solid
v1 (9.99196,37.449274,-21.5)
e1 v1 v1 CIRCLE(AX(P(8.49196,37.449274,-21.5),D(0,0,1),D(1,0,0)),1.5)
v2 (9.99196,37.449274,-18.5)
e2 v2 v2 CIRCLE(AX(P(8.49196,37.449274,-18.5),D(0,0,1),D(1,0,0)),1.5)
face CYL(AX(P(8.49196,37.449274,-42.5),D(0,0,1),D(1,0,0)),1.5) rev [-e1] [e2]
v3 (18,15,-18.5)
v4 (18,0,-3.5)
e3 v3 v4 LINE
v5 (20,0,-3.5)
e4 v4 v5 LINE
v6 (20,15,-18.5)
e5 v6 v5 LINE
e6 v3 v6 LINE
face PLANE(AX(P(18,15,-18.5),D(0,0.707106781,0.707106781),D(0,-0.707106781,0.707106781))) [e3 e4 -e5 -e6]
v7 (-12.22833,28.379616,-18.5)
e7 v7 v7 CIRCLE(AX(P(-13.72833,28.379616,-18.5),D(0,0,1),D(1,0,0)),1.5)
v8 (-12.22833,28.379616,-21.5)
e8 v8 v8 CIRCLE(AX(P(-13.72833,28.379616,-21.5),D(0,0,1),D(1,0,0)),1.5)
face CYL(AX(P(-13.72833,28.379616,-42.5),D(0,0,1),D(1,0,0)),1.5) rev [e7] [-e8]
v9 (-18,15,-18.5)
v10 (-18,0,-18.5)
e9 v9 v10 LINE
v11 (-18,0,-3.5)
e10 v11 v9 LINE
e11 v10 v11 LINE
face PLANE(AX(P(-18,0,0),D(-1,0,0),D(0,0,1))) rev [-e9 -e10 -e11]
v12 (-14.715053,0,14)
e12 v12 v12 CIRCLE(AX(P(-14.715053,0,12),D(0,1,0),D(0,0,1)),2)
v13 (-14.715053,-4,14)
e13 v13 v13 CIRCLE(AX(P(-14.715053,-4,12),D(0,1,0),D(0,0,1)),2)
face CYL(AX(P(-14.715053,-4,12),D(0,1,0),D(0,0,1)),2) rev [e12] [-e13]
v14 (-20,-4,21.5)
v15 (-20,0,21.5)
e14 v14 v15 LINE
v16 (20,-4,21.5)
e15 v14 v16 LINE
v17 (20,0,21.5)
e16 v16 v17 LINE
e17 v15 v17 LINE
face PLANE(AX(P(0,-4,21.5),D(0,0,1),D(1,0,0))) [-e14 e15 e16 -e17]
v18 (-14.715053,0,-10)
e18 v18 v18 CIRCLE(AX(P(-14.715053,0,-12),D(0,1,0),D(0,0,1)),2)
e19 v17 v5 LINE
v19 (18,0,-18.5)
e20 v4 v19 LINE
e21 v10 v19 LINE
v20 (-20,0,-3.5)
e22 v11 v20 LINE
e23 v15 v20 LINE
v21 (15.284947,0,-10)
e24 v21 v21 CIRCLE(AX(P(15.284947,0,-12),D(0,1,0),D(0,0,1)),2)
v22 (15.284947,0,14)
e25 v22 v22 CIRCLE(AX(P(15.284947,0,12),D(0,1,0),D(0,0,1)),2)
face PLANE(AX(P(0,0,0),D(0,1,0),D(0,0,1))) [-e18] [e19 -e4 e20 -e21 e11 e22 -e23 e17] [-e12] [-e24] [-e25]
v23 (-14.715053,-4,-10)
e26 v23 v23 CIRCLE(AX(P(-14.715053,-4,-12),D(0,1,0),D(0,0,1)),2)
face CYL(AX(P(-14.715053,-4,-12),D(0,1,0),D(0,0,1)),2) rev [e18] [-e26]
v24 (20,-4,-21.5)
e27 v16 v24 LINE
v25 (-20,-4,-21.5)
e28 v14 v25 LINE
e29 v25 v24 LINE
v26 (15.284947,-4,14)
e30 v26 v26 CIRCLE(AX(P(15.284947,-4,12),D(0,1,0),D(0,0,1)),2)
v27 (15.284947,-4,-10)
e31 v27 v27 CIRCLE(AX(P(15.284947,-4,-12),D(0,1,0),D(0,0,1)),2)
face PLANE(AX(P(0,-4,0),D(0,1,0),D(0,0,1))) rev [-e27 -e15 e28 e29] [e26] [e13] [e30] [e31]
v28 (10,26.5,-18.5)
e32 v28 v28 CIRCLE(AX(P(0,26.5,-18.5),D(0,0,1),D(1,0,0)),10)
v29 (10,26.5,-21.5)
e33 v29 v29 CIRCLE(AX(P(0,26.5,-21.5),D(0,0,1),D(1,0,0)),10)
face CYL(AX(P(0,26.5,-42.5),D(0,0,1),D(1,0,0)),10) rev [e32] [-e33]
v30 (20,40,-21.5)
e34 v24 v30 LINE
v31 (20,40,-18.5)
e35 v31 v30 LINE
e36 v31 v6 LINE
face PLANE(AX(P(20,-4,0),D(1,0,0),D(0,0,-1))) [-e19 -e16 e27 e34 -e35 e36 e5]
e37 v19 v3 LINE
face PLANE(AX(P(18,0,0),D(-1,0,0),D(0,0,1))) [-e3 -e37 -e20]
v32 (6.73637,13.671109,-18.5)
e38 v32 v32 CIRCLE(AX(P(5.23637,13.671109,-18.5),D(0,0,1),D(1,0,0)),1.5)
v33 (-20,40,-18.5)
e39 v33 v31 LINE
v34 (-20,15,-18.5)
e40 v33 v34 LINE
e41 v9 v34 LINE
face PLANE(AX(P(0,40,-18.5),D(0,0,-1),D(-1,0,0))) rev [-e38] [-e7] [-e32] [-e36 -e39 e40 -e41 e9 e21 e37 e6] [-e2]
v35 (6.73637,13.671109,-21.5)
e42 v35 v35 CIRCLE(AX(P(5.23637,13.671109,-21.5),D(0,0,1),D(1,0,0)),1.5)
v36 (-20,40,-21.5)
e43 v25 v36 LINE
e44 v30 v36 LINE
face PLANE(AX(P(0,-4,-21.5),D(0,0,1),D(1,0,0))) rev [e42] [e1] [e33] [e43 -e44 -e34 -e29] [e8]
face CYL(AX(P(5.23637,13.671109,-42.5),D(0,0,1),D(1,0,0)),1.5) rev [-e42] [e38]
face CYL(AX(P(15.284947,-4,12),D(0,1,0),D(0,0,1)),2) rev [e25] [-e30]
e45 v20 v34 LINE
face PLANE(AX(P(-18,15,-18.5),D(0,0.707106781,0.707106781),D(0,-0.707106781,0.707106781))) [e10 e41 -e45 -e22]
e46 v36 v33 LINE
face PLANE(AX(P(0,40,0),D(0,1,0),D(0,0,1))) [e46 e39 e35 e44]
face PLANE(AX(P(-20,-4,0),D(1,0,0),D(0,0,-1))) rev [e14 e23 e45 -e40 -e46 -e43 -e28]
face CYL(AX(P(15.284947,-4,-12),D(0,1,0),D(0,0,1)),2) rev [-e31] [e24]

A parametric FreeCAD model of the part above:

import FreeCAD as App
import Part
import Sketcher

doc = App.newDocument("Part")
body = doc.addObject("PartDesign::Body", "Body")

# Sketch on XZ plane
sketch1 = body.newObject("Sketcher::SketchObject", "Sketch")
sketch1.AttachmentSupport = (doc.getObject("XZ_Plane"), [""])
sketch1.MapMode = "FlatFace"
sketch1.addGeometry([
    Part.LineSegment(App.Vector(-20, -21.5, 0), App.Vector(-20, 21.5, 0)),  # 0
    Part.LineSegment(App.Vector(-20, 21.5, 0), App.Vector(20, 21.5, 0)),  # 1
    Part.LineSegment(App.Vector(20, 21.5, 0), App.Vector(20, -21.5, 0)),  # 2
    Part.LineSegment(App.Vector(20, -21.5, 0), App.Vector(-20, -21.5, 0)),  # 3
    Part.Circle(App.Vector(-14.7, 12, 0), App.Vector(0, 0, 1), 2),  # 4
    Part.Circle(App.Vector(15.3, 12, 0), App.Vector(0, 0, 1), 2),  # 5
    Part.Circle(App.Vector(-14.7, -12, 0), App.Vector(0, 0, 1), 2),  # 6
    Part.Circle(App.Vector(15.3, -12, 0), App.Vector(0, 0, 1), 2),  # 7
], False)
sketch1.addConstraint([
    Sketcher.Constraint("Coincident", 0, 2, 1, 1),
    Sketcher.Constraint("Coincident", 1, 2, 2, 1),
    Sketcher.Constraint("Coincident", 2, 2, 3, 1),
    Sketcher.Constraint("Coincident", 3, 2, 0, 1),
    Sketcher.Constraint("Vertical", 0),
    Sketcher.Constraint("Horizontal", 1),
    Sketcher.Constraint("Vertical", 2),
    Sketcher.Constraint("Horizontal", 3),
    Sketcher.Constraint("Equal", 4, 5),
    Sketcher.Constraint("Equal", 5, 6),
    Sketcher.Constraint("Equal", 6, 7),
    Sketcher.Constraint("Symmetric", 0, 2, 2, 2, -1, 1),
    Sketcher.Constraint("Symmetric", 4, 3, 6, 3, -1),
    Sketcher.Constraint("Symmetric", 5, 3, 7, 3, -1),
    Sketcher.Constraint("Horizontal", 4, 3, 5, 3),
    Sketcher.Constraint("Diameter", 4, 4.0),
    Sketcher.Constraint("DistanceX", 1, 1, 1, 2, 40.0),
    Sketcher.Constraint("DistanceY", 0, 1, 0, 2, 43.0),
    Sketcher.Constraint("DistanceY", -1, 1, 4, 3, 12.0),
    Sketcher.Constraint("DistanceX", 4, 3, 5, 3, 30.0),
    Sketcher.Constraint("DistanceX", 4, 3, -1, 1, 14.715053),
])
pad1 = body.newObject("PartDesign::Pad", "Pad")
pad1.Profile = sketch1
pad1.Length = 4

# Sketch on XZ plane
sketch2 = body.newObject("Sketcher::SketchObject", "Sketch001")
sketch2.AttachmentSupport = (doc.getObject("XZ_Plane"), [""])
sketch2.MapMode = "FlatFace"
sketch2.addGeometry([
    Part.LineSegment(App.Vector(-20, -21.5, 0), App.Vector(-20, -18.5, 0)),
    Part.LineSegment(App.Vector(-20, -18.5, 0), App.Vector(20, -18.5, 0)),
    Part.LineSegment(App.Vector(20, -18.5, 0), App.Vector(20, -21.5, 0)),
    Part.LineSegment(App.Vector(20, -21.5, 0), App.Vector(-20, -21.5, 0)),
], False)
sketch2.addConstraint([
    Sketcher.Constraint("Coincident", 0, 2, 1, 1),
    Sketcher.Constraint("Coincident", 1, 2, 2, 1),
    Sketcher.Constraint("Coincident", 2, 2, 3, 1),
    Sketcher.Constraint("Coincident", 3, 2, 0, 1),
    Sketcher.Constraint("Vertical", 0),
    Sketcher.Constraint("Horizontal", 1),
    Sketcher.Constraint("Vertical", 2),
    Sketcher.Constraint("Horizontal", 3),
    Sketcher.Constraint("DistanceX", 1, 1, 1, 2, 40.0),
    Sketcher.Constraint("DistanceY", 0, 1, 0, 2, 3.0),
    Sketcher.Constraint("DistanceX", 0, 2, -1, 1, 20.0),
    Sketcher.Constraint("DistanceY", 0, 2, -1, 1, 18.5),
])
pad2 = body.newObject("PartDesign::Pad", "Pad001")
pad2.Profile = sketch2
pad2.Length = 40
pad2.Reversed = True

# Sketch on XY plane
sketch3 = body.newObject("Sketcher::SketchObject", "Sketch002")
sketch3.AttachmentSupport = (doc.getObject("XY_Plane"), [""])
sketch3.MapMode = "FlatFace"
sketch3.AttachmentOffset = App.Placement(App.Vector(0, 0, -18.5), App.Rotation())
sketch3.addGeometry([
    Part.Circle(App.Vector(8.5, 37.4, 0), App.Vector(0, 0, 1), 1.5),
    Part.Circle(App.Vector(-13.7, 28.4, 0), App.Vector(0, 0, 1), 1.5),
    Part.Circle(App.Vector(5.2, 13.7, 0), App.Vector(0, 0, 1), 1.5),
    Part.Circle(App.Vector(0, 26.5, 0), App.Vector(0, 0, 1), 10),
], False)
sketch3.addConstraint([
    Sketcher.Constraint("Equal", 0, 1),
    Sketcher.Constraint("Equal", 1, 2),
    Sketcher.Constraint("PointOnObject", 3, 3, -2),
    Sketcher.Constraint("Diameter", 0, 3.0),
    Sketcher.Constraint("Diameter", 3, 20.0),
    Sketcher.Constraint("DistanceY", -1, 1, 3, 3, 26.5),
    Sketcher.Constraint("DistanceX", 1, 3, 2, 3, 18.9647),
    Sketcher.Constraint("DistanceX", -1, 1, 0, 3, 8.49196),
    Sketcher.Constraint("DistanceX", 1, 3, -1, 1, 13.72833),
    Sketcher.Constraint("DistanceY", -1, 1, 2, 3, 13.671109),
    Sketcher.Constraint("DistanceY", 1, 3, 0, 3, 9.069658),
    Sketcher.Constraint("DistanceY", -1, 1, 0, 3, 37.449274),
])
pocket1 = body.newObject("PartDesign::Pocket", "Pocket")
pocket1.Profile = sketch3
pocket1.Length = 24

# Sketch on YZ plane
sketch4 = body.newObject("Sketcher::SketchObject", "Sketch003")
sketch4.AttachmentSupport = (doc.getObject("YZ_Plane"), [""])
sketch4.MapMode = "FlatFace"
sketch4.AttachmentOffset = App.Placement(App.Vector(0, 0, 20), App.Rotation())
sketch4.addGeometry([
    Part.LineSegment(App.Vector(15, -18, 0), App.Vector(0, -4, 0)),
    Part.LineSegment(App.Vector(0, -4, 0), App.Vector(0, -18, 0)),
    Part.LineSegment(App.Vector(0, -18, 0), App.Vector(15, -18, 0)),
], False)
sketch4.addConstraint([
    Sketcher.Constraint("Coincident", 0, 2, 1, 1),
    Sketcher.Constraint("Coincident", 1, 2, 2, 1),
    Sketcher.Constraint("Coincident", 2, 2, 0, 1),
    Sketcher.Constraint("Vertical", 1),
    Sketcher.Constraint("Horizontal", 2),
    Sketcher.Constraint("PointOnObject", 0, 2, -2),
    Sketcher.Constraint("Equal", 2, 1),
    Sketcher.Constraint("DistanceX", 2, 1, 2, 2, 15.0),
    Sketcher.Constraint("DistanceY", 0, 2, -1, 1, 3.5),
])
pad3 = body.newObject("PartDesign::Pad", "Pad002")
pad3.Profile = sketch4
pad3.Length = 2
pad3.Reversed = True

# Sketch on YZ plane
sketch5 = body.newObject("Sketcher::SketchObject", "Sketch004")
sketch5.AttachmentSupport = (doc.getObject("YZ_Plane"), [""])
sketch5.MapMode = "FlatFace"
sketch5.AttachmentOffset = App.Placement(App.Vector(0, 0, -20), App.Rotation())
sketch5.addGeometry([
    Part.LineSegment(App.Vector(0, -4, 0), App.Vector(15, -18, 0)),
    Part.LineSegment(App.Vector(15, -18, 0), App.Vector(0, -18, 0)),
    Part.LineSegment(App.Vector(0, -18, 0), App.Vector(0, -4, 0)),
], False)
sketch5.addConstraint([
    Sketcher.Constraint("Coincident", 0, 2, 1, 1),
    Sketcher.Constraint("Coincident", 1, 2, 2, 1),
    Sketcher.Constraint("Coincident", 2, 2, 0, 1),
    Sketcher.Constraint("Horizontal", 1),
    Sketcher.Constraint("Vertical", 2),
    Sketcher.Constraint("PointOnObject", 1, 2, -2),
    Sketcher.Constraint("Equal", 1, 2),
    Sketcher.Constraint("DistanceX", 1, 2, 1, 1, 15.0),
    Sketcher.Constraint("DistanceY", 0, 2, -1, 1, 18.5),
])
pad4 = body.newObject("PartDesign::Pad", "Pad003")
pad4.Profile = sketch5
pad4.Length = 2

doc.recompute()
